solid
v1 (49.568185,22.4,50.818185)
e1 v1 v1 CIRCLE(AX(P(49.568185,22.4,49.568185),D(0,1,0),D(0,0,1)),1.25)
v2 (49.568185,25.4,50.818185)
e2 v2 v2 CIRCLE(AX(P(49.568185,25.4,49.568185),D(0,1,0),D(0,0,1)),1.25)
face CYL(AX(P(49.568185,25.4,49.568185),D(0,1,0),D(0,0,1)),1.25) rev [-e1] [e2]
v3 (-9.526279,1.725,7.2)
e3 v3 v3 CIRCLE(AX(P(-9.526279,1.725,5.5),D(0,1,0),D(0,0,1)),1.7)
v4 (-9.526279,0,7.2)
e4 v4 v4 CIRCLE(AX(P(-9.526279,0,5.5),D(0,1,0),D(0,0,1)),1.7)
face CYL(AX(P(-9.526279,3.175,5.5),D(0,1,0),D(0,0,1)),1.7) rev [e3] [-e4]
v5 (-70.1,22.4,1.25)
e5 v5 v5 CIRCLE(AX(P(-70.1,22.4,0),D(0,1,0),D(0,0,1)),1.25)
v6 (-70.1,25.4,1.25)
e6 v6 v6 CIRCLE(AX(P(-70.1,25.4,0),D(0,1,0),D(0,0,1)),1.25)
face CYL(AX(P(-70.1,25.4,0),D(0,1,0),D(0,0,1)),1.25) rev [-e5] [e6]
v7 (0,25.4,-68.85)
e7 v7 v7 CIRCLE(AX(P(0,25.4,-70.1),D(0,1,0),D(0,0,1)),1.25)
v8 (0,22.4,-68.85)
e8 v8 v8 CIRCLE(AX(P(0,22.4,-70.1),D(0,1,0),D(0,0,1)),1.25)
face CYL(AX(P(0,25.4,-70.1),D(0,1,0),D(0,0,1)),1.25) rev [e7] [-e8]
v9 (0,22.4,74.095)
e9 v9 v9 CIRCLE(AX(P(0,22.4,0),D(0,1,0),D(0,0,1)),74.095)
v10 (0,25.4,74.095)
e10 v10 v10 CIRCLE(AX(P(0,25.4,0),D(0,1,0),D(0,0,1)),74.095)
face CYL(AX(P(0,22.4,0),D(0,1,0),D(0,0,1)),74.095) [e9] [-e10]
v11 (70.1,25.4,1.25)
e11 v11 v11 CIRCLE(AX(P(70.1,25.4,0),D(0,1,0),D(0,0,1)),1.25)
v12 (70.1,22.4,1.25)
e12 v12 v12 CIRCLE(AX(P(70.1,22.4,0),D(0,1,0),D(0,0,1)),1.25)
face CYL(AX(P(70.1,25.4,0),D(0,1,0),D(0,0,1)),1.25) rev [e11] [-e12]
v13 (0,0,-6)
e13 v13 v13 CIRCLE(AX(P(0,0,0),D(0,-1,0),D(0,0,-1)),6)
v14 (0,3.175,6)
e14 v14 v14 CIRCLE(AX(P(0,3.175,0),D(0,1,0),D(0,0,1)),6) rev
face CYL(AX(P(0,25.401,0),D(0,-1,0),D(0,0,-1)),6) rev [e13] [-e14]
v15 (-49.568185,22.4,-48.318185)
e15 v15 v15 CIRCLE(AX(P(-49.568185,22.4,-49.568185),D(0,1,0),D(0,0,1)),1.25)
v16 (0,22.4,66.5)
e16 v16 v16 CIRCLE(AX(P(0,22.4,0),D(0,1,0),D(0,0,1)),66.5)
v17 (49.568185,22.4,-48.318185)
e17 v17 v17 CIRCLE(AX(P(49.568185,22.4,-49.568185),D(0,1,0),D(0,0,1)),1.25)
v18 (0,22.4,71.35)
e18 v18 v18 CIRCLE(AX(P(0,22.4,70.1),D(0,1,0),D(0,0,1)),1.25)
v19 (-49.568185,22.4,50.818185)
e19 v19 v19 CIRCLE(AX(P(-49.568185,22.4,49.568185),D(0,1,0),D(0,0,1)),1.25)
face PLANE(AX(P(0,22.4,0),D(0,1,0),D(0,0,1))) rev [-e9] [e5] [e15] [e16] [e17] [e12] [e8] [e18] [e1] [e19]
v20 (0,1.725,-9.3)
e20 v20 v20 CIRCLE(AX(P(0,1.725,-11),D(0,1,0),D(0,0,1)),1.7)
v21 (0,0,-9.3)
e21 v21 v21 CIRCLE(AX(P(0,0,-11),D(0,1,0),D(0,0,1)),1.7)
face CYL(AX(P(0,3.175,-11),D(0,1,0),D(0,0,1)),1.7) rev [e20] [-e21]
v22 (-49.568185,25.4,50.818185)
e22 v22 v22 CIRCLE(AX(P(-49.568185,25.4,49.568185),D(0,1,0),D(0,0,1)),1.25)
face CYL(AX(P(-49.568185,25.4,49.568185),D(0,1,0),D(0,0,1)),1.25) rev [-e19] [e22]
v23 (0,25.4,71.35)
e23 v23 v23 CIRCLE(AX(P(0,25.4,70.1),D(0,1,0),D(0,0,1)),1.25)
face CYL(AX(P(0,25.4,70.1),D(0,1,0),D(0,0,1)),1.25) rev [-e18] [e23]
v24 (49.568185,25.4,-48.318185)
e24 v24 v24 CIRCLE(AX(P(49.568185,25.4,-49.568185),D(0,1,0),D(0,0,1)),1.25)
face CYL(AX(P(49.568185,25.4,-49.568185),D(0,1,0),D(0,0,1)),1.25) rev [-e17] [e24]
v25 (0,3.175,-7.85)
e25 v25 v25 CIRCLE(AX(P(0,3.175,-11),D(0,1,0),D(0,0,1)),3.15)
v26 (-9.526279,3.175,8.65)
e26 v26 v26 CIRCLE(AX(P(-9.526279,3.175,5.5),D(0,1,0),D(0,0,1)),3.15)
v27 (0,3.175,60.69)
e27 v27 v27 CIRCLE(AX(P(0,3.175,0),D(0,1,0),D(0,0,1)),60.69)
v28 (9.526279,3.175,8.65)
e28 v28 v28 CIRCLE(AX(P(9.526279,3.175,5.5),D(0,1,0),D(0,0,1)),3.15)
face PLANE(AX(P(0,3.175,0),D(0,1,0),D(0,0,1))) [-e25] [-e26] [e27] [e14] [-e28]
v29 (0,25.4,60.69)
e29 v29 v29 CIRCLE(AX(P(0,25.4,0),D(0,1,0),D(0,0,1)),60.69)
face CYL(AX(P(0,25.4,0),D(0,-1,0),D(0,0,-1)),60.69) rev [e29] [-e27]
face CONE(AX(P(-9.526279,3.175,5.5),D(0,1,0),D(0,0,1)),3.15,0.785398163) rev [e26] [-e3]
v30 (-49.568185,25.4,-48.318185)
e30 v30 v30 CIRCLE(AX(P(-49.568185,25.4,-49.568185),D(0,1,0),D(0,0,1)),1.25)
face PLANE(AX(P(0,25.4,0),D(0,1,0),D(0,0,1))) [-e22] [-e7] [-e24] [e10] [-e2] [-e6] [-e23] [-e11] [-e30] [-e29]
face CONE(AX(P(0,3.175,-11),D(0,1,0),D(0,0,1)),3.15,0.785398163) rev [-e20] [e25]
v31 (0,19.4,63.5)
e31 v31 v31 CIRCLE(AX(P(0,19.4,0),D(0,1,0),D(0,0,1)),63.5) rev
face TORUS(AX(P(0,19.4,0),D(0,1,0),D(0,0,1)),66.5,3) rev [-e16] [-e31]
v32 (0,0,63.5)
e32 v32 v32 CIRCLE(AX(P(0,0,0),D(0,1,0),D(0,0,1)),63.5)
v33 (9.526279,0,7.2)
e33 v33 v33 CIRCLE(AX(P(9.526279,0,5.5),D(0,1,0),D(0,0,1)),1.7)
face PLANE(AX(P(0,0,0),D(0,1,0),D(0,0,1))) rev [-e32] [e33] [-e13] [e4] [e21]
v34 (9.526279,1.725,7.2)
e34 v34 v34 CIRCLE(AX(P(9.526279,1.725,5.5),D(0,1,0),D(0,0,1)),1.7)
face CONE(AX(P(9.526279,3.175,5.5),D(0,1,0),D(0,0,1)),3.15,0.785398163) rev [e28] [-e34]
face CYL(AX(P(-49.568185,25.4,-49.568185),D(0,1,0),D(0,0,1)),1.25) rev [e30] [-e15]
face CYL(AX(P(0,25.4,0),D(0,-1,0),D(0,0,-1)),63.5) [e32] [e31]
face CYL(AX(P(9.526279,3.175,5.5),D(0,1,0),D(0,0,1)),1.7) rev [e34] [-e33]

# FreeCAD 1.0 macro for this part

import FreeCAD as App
import Part
import Sketcher

V = App.Vector
Q = App.Units.Quantity


def edges_at(feature, points):
    """Names of the edges that pass closest to the given points."""
    edges = feature.Shape.Edges
    near = lambda p: min(range(len(edges)), key=lambda i: edges[i].distToShape(Part.Vertex(*p))[0])
    return sorted({f"Edge{near(p) + 1}" for p in points})

doc = App.newDocument("Part")
body = doc.addObject("PartDesign::Body", "Body")

sketch1 = body.newObject("Sketcher::SketchObject", "Sketch")
sketch1.AttachmentSupport = (doc.getObject("XZ_Plane"), [""])
sketch1.MapMode = "FlatFace"
sketch1.addGeometry([
    Part.Circle(V(0, 0, 0), V(0, 0, 1), 63.5),
    Part.Circle(V(0, 0, 0), V(0, 0, 1), 60.69),
], False)
sketch1.addConstraint([
    Sketcher.Constraint("Coincident", 0, 3, -1, 1),
    Sketcher.Constraint("Coincident", 1, 3, -1, 1),
    Sketcher.Constraint("Diameter", 0, Q("127 mm")),
    Sketcher.Constraint("Diameter", 1, Q("121.38 mm")),
])
pad1 = body.newObject("PartDesign::Pad", "Pad")
pad1.Profile = sketch1
pad1.Length = 25.4
pad1.Reversed = True

sketch2 = body.newObject("Sketcher::SketchObject", "Sketch001")
sketch2.AttachmentSupport = (doc.getObject("XZ_Plane"), [""])
sketch2.MapMode = "FlatFace"
sketch2.addGeometry(Part.Circle(V(0, 0, 0), V(0, 0, 1), 63.5), False)
sketch2.addConstraint([
    Sketcher.Constraint("Coincident", 0, 3, -1, 1),
    Sketcher.Constraint("Diameter", 0, Q("127 mm")),
])
pad2 = body.newObject("PartDesign::Pad", "Pad001")
pad2.Profile = sketch2
pad2.Length = 3.175
pad2.Reversed = True

sketch3 = body.newObject("Sketcher::SketchObject", "Sketch002")
sketch3.AttachmentSupport = (doc.getObject("XZ_Plane"), [""])
sketch3.MapMode = "FlatFace"
sketch3.addGeometry(Part.Circle(V(0, 0, 0), V(0, 0, 1), 6), False)
sketch3.addConstraint([
    Sketcher.Constraint("Coincident", 0, 3, -1, 1),
    Sketcher.Constraint("Diameter", 0, Q("12 mm")),
])
pocket1 = body.newObject("PartDesign::Pocket", "Pocket")
pocket1.Profile = sketch3
pocket1.Type = "UpToFirst"

sketch4 = body.newObject("Sketcher::SketchObject", "Sketch003")
sketch4.AttachmentSupport = (doc.getObject("XZ_Plane"), [""])
sketch4.MapMode = "FlatFace"
sketch4.AttachmentOffset = App.Placement(V(0, 0, -25.4), App.Rotation())
sketch4.addGeometry([
    Part.Circle(V(0, 0, 0), V(0, 0, 1), 74.095),
    Part.Circle(V(0, 0, 0), V(0, 0, 1), 63.5),
], False)
sketch4.addConstraint([
    Sketcher.Constraint("Coincident", 0, 3, -1, 1),
    Sketcher.Constraint("Coincident", 1, 3, -1, 1),
    Sketcher.Constraint("Diameter", 1, Q("127 mm")),
    Sketcher.Constraint("Diameter", 0, Q("148.19 mm")),
])
pad3 = body.newObject("PartDesign::Pad", "Pad002")
pad3.Profile = sketch4
pad3.Length = 3

sketch5 = body.newObject("Sketcher::SketchObject", "Sketch004")
sketch5.AttachmentSupport = (doc.getObject("XZ_Plane"), [""])
sketch5.MapMode = "FlatFace"
sketch5.AttachmentOffset = App.Placement(V(0, 0, -25.4), App.Rotation())
sketch5.addGeometry(Part.Circle(V(0, -70.1, 0), V(0, 0, 1), 1.25), False)
sketch5.addConstraint([
    Sketcher.Constraint("PointOnObject", 0, 3, -2),
    Sketcher.Constraint("Diameter", 0, Q("2.5 mm")),
    Sketcher.Constraint("DistanceY", 0, 3, -1, 1, Q("70.1 mm")),
])
doc.recompute()
hole = body.newObject("PartDesign::Hole", "Hole")
hole.Profile = sketch5
hole.ThreadType = "None"
hole.Diameter = 2.5
hole.DepthType = "ThroughAll"
hole.Reversed = True
doc.recompute()

polarpattern = body.newObject("PartDesign::PolarPattern", "PolarPattern")
polarpattern.Originals = [hole]
polarpattern.Axis = (doc.getObject("Y_Axis"), [""])
polarpattern.Angle = 360
polarpattern.Occurrences = 8
body.Tip = polarpattern
doc.recompute()

fillet = body.newObject("PartDesign::Fillet", "Fillet")
fillet.Base = (polarpattern, edges_at(polarpattern, [(-63.5, 22.4, 0)]))
fillet.Radius = 3

sketch6 = body.newObject("Sketcher::SketchObject", "Sketch005")
sketch6.AttachmentSupport = (doc.getObject("XZ_Plane"), [""])
sketch6.MapMode = "FlatFace"
sketch6.AttachmentOffset = App.Placement(V(0, 0, -3.175), App.Rotation())
sketch6.addGeometry(Part.Circle(V(0, -11, 0), V(0, 0, 1), 1.7), False)
sketch6.addConstraint([
    Sketcher.Constraint("PointOnObject", 0, 3, -2),
    Sketcher.Constraint("Diameter", 0, Q("3.4 mm")),
    Sketcher.Constraint("DistanceY", 0, 3, -1, 1, Q("11 mm")),
])
doc.recompute()
hole2 = body.newObject("PartDesign::Hole", "Hole001")
hole2.Profile = sketch6
hole2.ThreadType = "None"
hole2.Diameter = 3.4
hole2.DepthType = "ThroughAll"
hole2.HoleCutType = "Countersink"
hole2.HoleCutDiameter = 6.3
hole2.HoleCutCountersinkAngle = 90
hole2.Reversed = True
doc.recompute()

polarpattern2 = body.newObject("PartDesign::PolarPattern", "PolarPattern001")
polarpattern2.Originals = [hole2]
polarpattern2.Axis = (doc.getObject("Y_Axis"), [""])
polarpattern2.Angle = 360
polarpattern2.Occurrences = 3
body.Tip = polarpattern2

doc.recompute()
